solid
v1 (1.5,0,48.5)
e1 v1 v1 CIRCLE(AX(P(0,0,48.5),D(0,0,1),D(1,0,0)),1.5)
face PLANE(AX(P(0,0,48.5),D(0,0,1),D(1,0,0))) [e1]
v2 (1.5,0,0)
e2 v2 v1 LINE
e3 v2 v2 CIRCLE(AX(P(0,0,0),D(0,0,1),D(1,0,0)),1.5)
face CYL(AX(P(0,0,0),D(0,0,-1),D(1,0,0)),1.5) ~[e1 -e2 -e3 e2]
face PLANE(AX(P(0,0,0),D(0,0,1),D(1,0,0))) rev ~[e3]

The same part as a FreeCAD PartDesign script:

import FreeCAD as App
import Part
import Sketcher
from FreeCAD import Vector

doc = App.newDocument("Part")
body = doc.addObject("PartDesign::Body", "Body")

# Sketch on XY plane
sketch1 = doc.addObject("Sketcher::SketchObject", "Sketch")
body.addObject(sketch1)
sketch1.AttachmentSupport = (doc.XY_Plane, [""])
sketch1.MapMode = "FlatFace"
sketch1.addGeometry(Part.Circle(Vector(0, 0, 0), Vector(0, 0, 1), 1.5), False)
sketch1.addConstraint(Sketcher.Constraint("Coincident", 0, 3, -1, 1))
sketch1.addConstraint(Sketcher.Constraint("Diameter", 0, 3.0))
pad1 = doc.addObject("PartDesign::Pad", "Pad")
body.addObject(pad1)
pad1.Profile = sketch1
pad1.Length = 48.5

doc.recompute()
